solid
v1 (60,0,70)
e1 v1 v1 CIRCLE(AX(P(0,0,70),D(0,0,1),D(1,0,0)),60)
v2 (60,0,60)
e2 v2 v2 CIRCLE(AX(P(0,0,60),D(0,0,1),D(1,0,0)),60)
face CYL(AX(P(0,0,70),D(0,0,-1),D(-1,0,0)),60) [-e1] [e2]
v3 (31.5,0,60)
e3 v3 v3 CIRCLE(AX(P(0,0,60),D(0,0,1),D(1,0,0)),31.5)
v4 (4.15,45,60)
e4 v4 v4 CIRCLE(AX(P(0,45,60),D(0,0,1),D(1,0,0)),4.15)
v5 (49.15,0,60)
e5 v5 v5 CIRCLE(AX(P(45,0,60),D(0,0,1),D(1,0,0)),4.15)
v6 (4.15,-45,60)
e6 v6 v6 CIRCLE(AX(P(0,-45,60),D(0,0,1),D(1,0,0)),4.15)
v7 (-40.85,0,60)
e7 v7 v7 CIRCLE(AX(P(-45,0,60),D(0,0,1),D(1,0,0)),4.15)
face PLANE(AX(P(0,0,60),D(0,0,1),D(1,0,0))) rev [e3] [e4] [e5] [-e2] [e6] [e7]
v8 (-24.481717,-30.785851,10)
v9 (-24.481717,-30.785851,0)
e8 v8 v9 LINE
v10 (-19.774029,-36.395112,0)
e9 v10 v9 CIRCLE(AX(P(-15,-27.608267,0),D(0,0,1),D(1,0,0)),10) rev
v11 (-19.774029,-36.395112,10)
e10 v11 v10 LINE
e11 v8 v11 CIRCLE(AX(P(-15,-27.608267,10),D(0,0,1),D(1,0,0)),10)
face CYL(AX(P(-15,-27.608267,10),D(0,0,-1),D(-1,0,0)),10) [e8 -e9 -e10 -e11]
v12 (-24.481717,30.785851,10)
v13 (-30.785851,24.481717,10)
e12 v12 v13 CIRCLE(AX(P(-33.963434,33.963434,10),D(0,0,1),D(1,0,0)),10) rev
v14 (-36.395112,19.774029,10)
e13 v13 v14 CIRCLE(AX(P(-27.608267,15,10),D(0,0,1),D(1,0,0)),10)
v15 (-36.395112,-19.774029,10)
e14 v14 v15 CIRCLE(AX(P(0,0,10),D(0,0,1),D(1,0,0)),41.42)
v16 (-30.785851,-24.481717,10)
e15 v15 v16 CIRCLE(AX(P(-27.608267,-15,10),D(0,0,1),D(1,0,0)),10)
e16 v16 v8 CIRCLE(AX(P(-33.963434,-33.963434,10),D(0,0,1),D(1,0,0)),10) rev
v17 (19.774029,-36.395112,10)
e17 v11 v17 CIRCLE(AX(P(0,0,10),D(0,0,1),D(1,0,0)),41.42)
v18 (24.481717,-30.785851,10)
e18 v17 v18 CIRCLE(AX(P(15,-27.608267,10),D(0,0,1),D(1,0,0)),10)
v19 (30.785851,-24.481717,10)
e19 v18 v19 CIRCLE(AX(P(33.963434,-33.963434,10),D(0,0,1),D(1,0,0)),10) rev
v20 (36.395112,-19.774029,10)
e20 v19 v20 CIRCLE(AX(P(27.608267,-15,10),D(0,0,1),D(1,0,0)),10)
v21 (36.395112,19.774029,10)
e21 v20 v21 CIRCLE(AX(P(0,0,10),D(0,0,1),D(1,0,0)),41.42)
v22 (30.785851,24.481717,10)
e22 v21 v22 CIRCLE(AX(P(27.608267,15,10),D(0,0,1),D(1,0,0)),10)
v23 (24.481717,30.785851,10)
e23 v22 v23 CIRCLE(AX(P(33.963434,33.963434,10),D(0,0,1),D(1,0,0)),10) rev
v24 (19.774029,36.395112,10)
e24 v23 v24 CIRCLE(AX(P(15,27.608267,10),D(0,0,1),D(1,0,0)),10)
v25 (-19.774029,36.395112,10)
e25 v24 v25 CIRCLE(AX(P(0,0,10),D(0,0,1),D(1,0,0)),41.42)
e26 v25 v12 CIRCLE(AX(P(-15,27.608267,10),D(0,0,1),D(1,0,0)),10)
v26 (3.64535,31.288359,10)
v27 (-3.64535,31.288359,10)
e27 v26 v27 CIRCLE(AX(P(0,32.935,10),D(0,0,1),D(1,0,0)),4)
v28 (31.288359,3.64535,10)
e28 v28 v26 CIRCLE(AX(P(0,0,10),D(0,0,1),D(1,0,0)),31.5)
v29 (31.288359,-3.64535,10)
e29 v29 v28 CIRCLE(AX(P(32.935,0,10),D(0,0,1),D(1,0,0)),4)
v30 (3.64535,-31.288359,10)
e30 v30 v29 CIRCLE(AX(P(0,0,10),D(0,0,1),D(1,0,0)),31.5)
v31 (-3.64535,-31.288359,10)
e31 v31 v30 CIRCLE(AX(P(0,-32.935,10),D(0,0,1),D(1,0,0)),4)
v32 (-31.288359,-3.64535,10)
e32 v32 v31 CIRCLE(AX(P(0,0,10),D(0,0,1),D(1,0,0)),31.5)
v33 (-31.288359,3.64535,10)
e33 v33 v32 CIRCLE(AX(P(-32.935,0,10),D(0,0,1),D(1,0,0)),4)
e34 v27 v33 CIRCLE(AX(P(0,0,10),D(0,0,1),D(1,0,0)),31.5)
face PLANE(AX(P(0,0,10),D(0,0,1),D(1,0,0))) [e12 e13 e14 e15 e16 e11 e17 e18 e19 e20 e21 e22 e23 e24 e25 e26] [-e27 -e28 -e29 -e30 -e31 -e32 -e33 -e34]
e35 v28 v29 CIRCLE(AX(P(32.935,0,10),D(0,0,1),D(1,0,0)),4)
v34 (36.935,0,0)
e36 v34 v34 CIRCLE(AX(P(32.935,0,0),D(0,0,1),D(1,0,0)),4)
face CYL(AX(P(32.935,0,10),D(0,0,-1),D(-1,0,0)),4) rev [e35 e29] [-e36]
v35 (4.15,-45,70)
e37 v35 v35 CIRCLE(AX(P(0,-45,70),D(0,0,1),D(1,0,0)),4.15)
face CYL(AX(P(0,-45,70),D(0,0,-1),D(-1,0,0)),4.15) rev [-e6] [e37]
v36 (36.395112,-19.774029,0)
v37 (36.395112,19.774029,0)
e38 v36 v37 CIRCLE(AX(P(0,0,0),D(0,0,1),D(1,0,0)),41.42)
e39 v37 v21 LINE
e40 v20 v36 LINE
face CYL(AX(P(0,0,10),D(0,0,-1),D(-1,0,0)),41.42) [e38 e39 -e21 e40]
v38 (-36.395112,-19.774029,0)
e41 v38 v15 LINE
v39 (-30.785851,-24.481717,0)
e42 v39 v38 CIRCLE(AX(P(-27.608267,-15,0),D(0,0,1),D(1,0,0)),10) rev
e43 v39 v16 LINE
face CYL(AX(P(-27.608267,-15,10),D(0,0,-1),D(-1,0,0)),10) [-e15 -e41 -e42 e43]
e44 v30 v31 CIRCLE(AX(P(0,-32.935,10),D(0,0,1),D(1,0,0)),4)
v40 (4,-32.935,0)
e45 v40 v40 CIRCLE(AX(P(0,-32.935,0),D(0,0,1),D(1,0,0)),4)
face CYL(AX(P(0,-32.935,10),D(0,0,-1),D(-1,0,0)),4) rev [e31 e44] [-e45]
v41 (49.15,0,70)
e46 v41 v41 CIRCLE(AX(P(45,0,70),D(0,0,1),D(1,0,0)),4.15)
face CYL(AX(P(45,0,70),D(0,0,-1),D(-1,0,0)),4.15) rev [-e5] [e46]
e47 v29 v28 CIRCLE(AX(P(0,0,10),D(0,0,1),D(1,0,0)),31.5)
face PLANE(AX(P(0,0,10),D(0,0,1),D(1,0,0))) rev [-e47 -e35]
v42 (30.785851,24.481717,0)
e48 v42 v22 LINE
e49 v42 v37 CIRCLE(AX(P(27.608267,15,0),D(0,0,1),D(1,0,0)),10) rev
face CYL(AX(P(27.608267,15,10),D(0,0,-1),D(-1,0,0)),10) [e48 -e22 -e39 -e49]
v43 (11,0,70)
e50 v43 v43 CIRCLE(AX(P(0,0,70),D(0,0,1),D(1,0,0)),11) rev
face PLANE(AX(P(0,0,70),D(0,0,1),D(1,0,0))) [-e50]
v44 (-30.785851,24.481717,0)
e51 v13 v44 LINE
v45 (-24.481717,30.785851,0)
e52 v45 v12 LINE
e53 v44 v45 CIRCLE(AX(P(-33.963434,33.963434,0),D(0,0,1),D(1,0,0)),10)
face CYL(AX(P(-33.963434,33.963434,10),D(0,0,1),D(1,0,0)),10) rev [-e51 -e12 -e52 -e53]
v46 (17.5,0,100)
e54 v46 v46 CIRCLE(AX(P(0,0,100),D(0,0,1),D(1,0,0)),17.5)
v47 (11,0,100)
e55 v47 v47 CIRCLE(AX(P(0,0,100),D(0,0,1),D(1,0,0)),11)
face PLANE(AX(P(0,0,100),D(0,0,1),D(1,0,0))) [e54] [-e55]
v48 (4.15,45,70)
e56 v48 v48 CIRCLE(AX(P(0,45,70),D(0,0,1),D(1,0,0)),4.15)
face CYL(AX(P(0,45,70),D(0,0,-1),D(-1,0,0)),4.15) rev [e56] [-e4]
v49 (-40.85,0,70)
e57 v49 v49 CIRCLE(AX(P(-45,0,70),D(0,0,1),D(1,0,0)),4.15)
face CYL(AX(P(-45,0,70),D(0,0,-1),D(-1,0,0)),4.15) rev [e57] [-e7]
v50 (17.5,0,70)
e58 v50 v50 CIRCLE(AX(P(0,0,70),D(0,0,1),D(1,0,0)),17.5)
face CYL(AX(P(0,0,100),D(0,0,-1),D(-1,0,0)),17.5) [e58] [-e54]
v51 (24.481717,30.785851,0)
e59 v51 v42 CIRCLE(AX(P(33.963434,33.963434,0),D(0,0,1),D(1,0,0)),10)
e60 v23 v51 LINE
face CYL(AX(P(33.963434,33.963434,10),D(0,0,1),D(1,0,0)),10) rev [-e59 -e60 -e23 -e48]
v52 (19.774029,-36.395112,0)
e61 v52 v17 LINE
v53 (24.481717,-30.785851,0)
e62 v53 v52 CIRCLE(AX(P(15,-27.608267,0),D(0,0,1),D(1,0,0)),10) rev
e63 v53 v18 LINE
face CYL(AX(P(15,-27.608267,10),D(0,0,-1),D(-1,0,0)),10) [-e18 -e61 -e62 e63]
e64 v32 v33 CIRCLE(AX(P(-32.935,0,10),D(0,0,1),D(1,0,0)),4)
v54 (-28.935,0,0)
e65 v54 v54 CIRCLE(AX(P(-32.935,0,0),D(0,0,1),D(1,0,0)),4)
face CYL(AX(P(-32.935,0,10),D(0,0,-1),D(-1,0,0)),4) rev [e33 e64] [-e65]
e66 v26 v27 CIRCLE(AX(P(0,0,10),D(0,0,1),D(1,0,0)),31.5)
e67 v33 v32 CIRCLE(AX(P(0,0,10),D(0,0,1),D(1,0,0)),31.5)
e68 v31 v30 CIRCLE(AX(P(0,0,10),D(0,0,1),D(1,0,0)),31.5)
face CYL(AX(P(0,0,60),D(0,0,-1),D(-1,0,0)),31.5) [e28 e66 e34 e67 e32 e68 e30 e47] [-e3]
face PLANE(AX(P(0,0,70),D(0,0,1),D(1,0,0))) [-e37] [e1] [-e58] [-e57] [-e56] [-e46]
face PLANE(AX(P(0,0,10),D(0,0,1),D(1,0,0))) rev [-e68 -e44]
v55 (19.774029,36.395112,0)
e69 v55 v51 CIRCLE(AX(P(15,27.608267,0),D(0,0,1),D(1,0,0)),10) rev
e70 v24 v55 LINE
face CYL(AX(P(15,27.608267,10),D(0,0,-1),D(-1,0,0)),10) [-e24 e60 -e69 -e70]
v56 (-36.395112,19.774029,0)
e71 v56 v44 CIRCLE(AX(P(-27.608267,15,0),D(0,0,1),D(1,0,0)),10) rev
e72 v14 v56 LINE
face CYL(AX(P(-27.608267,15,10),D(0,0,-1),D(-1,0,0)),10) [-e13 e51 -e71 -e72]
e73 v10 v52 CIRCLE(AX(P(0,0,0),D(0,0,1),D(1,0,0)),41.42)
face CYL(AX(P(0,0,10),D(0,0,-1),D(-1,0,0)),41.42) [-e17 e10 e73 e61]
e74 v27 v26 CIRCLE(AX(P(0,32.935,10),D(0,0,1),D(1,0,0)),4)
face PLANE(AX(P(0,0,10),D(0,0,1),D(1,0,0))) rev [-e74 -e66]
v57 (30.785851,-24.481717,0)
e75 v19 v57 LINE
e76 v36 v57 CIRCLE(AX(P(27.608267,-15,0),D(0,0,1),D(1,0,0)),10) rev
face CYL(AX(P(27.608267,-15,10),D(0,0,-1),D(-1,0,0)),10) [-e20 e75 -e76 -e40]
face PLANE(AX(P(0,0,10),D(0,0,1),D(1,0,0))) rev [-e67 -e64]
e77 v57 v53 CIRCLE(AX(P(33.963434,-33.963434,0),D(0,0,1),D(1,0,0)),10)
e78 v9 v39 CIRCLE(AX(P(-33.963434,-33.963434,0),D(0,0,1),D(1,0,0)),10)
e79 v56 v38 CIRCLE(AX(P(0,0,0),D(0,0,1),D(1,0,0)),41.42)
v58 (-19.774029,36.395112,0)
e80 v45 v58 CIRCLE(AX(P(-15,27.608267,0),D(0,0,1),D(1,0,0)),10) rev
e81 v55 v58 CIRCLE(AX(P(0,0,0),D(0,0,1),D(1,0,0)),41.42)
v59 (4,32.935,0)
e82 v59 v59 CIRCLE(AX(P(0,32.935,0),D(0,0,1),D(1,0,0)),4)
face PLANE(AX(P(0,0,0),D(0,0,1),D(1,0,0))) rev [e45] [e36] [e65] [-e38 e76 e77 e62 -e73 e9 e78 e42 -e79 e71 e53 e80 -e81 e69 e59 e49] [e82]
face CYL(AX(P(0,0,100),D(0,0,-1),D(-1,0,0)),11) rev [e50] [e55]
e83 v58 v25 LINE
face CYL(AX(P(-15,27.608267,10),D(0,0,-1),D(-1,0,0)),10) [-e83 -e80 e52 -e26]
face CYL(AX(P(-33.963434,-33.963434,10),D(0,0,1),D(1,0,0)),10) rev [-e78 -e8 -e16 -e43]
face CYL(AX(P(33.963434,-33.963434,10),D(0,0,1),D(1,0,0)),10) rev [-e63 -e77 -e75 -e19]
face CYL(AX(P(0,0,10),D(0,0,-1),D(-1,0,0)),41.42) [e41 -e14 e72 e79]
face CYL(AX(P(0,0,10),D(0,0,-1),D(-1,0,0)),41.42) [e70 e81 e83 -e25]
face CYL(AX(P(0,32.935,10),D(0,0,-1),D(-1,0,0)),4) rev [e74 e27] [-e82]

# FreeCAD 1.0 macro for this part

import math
import FreeCAD as App
import Part
import Sketcher

V = App.Vector
Q = App.Units.Quantity


def edges_at(feature, points):
    """Names of the edges that pass closest to the given points."""
    edges = feature.Shape.Edges
    near = lambda p: min(range(len(edges)), key=lambda i: edges[i].distToShape(Part.Vertex(*p))[0])
    return sorted({f"Edge{near(p) + 1}" for p in points})

doc = App.newDocument("Part")
params = doc.addObject("Spreadsheet::Sheet", "Params")
for row, (alias, value) in enumerate([
    ("sketch1_diameter", "8 mm"),
    ("sketch1_radius", "41.42 mm"),
    ("pad1_length", "10 mm"),
    ("fillet_radius", "10 mm"),
    ("fillet2_radius", "10 mm"),
    ("sketch2_diameter", "63 mm"),
    ("pad2_length", "50 mm"),
    ("sketch3_diameter", "120 mm"),
    ("sketch3_diameter2", "8.3 mm"),
    ("pad3_length", "10 mm"),
    ("sketch4_diameter", "35 mm"),
    ("sketch4_diameter2", "22 mm"),
    ("pad4_length", "30 mm"),
], start=1):
    params.set(f"A{row}", alias)
    params.set(f"B{row}", "=" + value)
    params.setAlias(f"B{row}", alias)

body = doc.addObject("PartDesign::Body", "Body")

sketch1 = body.newObject("Sketcher::SketchObject", "Sketch")
sketch1.AttachmentSupport = (doc.getObject("XY_Plane"), [""])
sketch1.MapMode = "FlatFace"
sketch1.addGeometry([
    Part.LineSegment(V(-33, -25, 0), V(-25, -25, 0)),
    Part.LineSegment(V(-25, -25, 0), V(-25, -33, 0)),
    Part.ArcOfCircle(Part.Circle(V(0, 0, 0), V(0, 0, 1), 41.4), math.radians(-127), math.radians(-53)),
    Part.LineSegment(V(25, -33, 0), V(25, -25, 0)),
    Part.LineSegment(V(25, -25, 0), V(33, -25, 0)),
    Part.ArcOfCircle(Part.Circle(V(0, 0, 0), V(0, 0, 1), 41.4), math.radians(-37), math.radians(37)),
    Part.LineSegment(V(33, 25, 0), V(25, 25, 0)),
    Part.LineSegment(V(25, 25, 0), V(25, 33, 0)),
    Part.ArcOfCircle(Part.Circle(V(0, 0, 0), V(0, 0, 1), 41.4), math.radians(53), math.radians(127)),
    Part.LineSegment(V(-25, 33, 0), V(-25, 25, 0)),
    Part.LineSegment(V(-25, 25, 0), V(-33, 25, 0)),
    Part.ArcOfCircle(Part.Circle(V(0, 0, 0), V(0, 0, 1), 41.4), math.radians(143), math.radians(217)),
    Part.Circle(V(-32.9, 0, 0), V(0, 0, 1), 4),
    Part.Circle(V(0, -32.9, 0), V(0, 0, 1), 4),
    Part.Circle(V(32.9, 0, 0), V(0, 0, 1), 4),
    Part.Circle(V(0, 32.9, 0), V(0, 0, 1), 4),
], False)
sketch1.addConstraint([
    Sketcher.Constraint("Coincident", 0, 2, 1, 1),
    Sketcher.Constraint("Coincident", 1, 2, 2, 1),
    Sketcher.Constraint("Coincident", 2, 2, 3, 1),
    Sketcher.Constraint("Coincident", 3, 2, 4, 1),
    Sketcher.Constraint("Coincident", 4, 2, 5, 1),
    Sketcher.Constraint("Coincident", 5, 2, 6, 1),
    Sketcher.Constraint("Coincident", 6, 2, 7, 1),
    Sketcher.Constraint("Coincident", 7, 2, 8, 1),
    Sketcher.Constraint("Coincident", 8, 2, 9, 1),
    Sketcher.Constraint("Coincident", 9, 2, 10, 1),
    Sketcher.Constraint("Coincident", 10, 2, 11, 1),
    Sketcher.Constraint("Coincident", 11, 2, 0, 1),
    Sketcher.Constraint("Horizontal", 0),
    Sketcher.Constraint("Vertical", 1),
    Sketcher.Constraint("Vertical", 3),
    Sketcher.Constraint("Horizontal", 4),
    Sketcher.Constraint("Horizontal", 6),
    Sketcher.Constraint("Vertical", 7),
    Sketcher.Constraint("Vertical", 9),
    Sketcher.Constraint("Horizontal", 10),
    Sketcher.Constraint("Coincident", 2, 3, -1, 1),
    Sketcher.Constraint("Coincident", 5, 3, -1, 1),
    Sketcher.Constraint("Coincident", 8, 3, -1, 1),
    Sketcher.Constraint("Coincident", 11, 3, -1, 1),
    Sketcher.Constraint("Equal", 2, 5),
    Sketcher.Constraint("Equal", 5, 8),
    Sketcher.Constraint("Equal", 8, 11),
    Sketcher.Constraint("Equal", 12, 13),
    Sketcher.Constraint("Equal", 13, 14),
    Sketcher.Constraint("Equal", 14, 15),
    Sketcher.Constraint("Symmetric", 12, 3, 14, 3, -1, 1),
    Sketcher.Constraint("Symmetric", 13, 3, 15, 3, -1, 1),
    Sketcher.Constraint("Symmetric", 0, 2, 6, 2, -1, 1),
    Sketcher.Constraint("Symmetric", 3, 2, 9, 2, -1, 1),
    Sketcher.Constraint("Symmetric", 0, 2, 3, 2, -2),
    Sketcher.Constraint("PointOnObject", 12, 3, -1),
    Sketcher.Constraint("PointOnObject", 13, 3, -2),
    Sketcher.Constraint("Equal", 10, 1),
    Sketcher.Constraint("Diameter", 12, Q("8 mm")),
    Sketcher.Constraint("Radius", 2, Q("41.42 mm")),
    Sketcher.Constraint("DistanceX", 0, 2, -1, 1, Q("25 mm")),
    Sketcher.Constraint("DistanceX", 12, 3, -1, 1, Q("32.935 mm")),
    Sketcher.Constraint("DistanceY", 13, 3, -1, 1, Q("32.935 mm")),
])
sketch1.setExpression("Constraints[38]", "Params.sketch1_diameter")
sketch1.setExpression("Constraints[39]", "Params.sketch1_radius")
pad1 = body.newObject("PartDesign::Pad", "Pad")
pad1.Profile = sketch1
pad1.setExpression("Length", "Params.pad1_length")
doc.recompute()

fillet = body.newObject("PartDesign::Fillet", "Fillet")
fillet.Base = (pad1, edges_at(pad1, [
    (-25, 33.024, 5),
    (25, 33.024, 5),
    (33.024, 25, 5),
    (33.024, -25, 5),
    (25, -33.024, 5),
    (-25, -33.024, 5),
    (-33.024, -25, 5),
    (-33.024, 25, 5),
]))
fillet.setExpression("Radius", "Params.fillet_radius")
doc.recompute()

fillet2 = body.newObject("PartDesign::Fillet", "Fillet001")
fillet2.Base = (fillet, edges_at(fillet, [
    (25, 25, 5),
    (-25, 25, 5),
    (-25, -25, 5),
    (25, -25, 5),
]))
fillet2.setExpression("Radius", "Params.fillet2_radius")

sketch2 = body.newObject("Sketcher::SketchObject", "Sketch001")
sketch2.AttachmentSupport = (doc.getObject("XY_Plane"), [""])
sketch2.MapMode = "FlatFace"
sketch2.AttachmentOffset = App.Placement(V(0, 0, 10), App.Rotation())
sketch2.addGeometry(Part.Circle(V(0, 0, 0), V(0, 0, 1), 32), False)
sketch2.addConstraint([
    Sketcher.Constraint("Coincident", 0, 3, -1, 1),
    Sketcher.Constraint("Diameter", 0, Q("63 mm")),
])
sketch2.setExpression("Constraints[1]", "Params.sketch2_diameter")
pad2 = body.newObject("PartDesign::Pad", "Pad001")
pad2.Profile = sketch2
pad2.setExpression("Length", "Params.pad2_length")

sketch3 = body.newObject("Sketcher::SketchObject", "Sketch002")
sketch3.AttachmentSupport = (doc.getObject("XY_Plane"), [""])
sketch3.MapMode = "FlatFace"
sketch3.AttachmentOffset = App.Placement(V(0, 0, 60), App.Rotation())
sketch3.addGeometry([
    Part.Circle(V(0, 0, 0), V(0, 0, 1), 60),
    Part.Circle(V(0, -45, 0), V(0, 0, 1), 4.2),
    Part.Circle(V(-45, 0, 0), V(0, 0, 1), 4.2),
    Part.Circle(V(45, 0, 0), V(0, 0, 1), 4.2),
    Part.Circle(V(0, 45, 0), V(0, 0, 1), 4.2),
], False)
sketch3.addConstraint([
    Sketcher.Constraint("Coincident", 0, 3, -1, 1),
    Sketcher.Constraint("Equal", 1, 2),
    Sketcher.Constraint("Equal", 2, 3),
    Sketcher.Constraint("Equal", 3, 4),
    Sketcher.Constraint("Symmetric", 2, 3, 3, 3, -1, 1),
    Sketcher.Constraint("Symmetric", 1, 3, 4, 3, -1, 1),
    Sketcher.Constraint("PointOnObject", 1, 3, -2),
    Sketcher.Constraint("PointOnObject", 2, 3, -1),
    Sketcher.Constraint("Diameter", 0, Q("120 mm")),
    Sketcher.Constraint("Diameter", 1, Q("8.3 mm")),
    Sketcher.Constraint("DistanceY", 1, 3, -1, 1, Q("45 mm")),
    Sketcher.Constraint("DistanceX", 2, 3, -1, 1, Q("45 mm")),
])
sketch3.setExpression("Constraints[8]", "Params.sketch3_diameter")
sketch3.setExpression("Constraints[9]", "Params.sketch3_diameter2")
pad3 = body.newObject("PartDesign::Pad", "Pad002")
pad3.Profile = sketch3
pad3.setExpression("Length", "Params.pad3_length")

sketch4 = body.newObject("Sketcher::SketchObject", "Sketch003")
sketch4.AttachmentSupport = (doc.getObject("XY_Plane"), [""])
sketch4.MapMode = "FlatFace"
sketch4.AttachmentOffset = App.Placement(V(0, 0, 70), App.Rotation())
sketch4.addGeometry([
    Part.Circle(V(0, 0, 0), V(0, 0, 1), 18),
    Part.Circle(V(0, 0, 0), V(0, 0, 1), 11),
], False)
sketch4.addConstraint([
    Sketcher.Constraint("Coincident", 0, 3, -1, 1),
    Sketcher.Constraint("Coincident", 1, 3, -1, 1),
    Sketcher.Constraint("Diameter", 0, Q("35 mm")),
    Sketcher.Constraint("Diameter", 1, Q("22 mm")),
])
sketch4.setExpression("Constraints[2]", "Params.sketch4_diameter")
sketch4.setExpression("Constraints[3]", "Params.sketch4_diameter2")
pad4 = body.newObject("PartDesign::Pad", "Pad003")
pad4.Profile = sketch4
pad4.setExpression("Length", "Params.pad4_length")

doc.recompute()
